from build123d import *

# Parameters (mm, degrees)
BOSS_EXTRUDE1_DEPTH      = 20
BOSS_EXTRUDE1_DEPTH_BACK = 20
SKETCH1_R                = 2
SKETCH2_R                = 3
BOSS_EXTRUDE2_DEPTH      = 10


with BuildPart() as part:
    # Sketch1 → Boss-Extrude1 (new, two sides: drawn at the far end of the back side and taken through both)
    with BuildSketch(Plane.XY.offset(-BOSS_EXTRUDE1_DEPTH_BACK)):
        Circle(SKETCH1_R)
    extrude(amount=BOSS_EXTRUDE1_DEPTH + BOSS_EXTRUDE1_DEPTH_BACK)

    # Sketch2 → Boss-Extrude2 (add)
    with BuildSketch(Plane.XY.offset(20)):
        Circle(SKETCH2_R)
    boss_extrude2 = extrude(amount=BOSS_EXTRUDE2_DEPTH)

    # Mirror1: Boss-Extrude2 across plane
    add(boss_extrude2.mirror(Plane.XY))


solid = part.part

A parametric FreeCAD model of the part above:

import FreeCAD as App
import Part
import Sketcher
from FreeCAD import Vector

doc = App.newDocument("Part")
body = doc.addObject("PartDesign::Body", "Body")

# Sketch on XY plane
sketch1 = body.newObject("Sketcher::SketchObject", "Sketch")
sketch1.AttachmentSupport = (doc.getObject("XY_Plane"), [""])
sketch1.MapMode = "FlatFace"
sketch1.addGeometry(Part.Circle(Vector(0, 0, 0), Vector(0, 0, 1), 2), False)
sketch1.addConstraint([
    Sketcher.Constraint("Coincident", 0, 3, -1, 1),
    Sketcher.Constraint("Diameter", 0, 4.0),
])
pad1 = body.newObject("PartDesign::Pad", "Pad")
pad1.Profile = sketch1
pad1.Type = "TwoLengths"
pad1.Length = 20
pad1.Length2 = 20

# Sketch on XY plane
sketch2 = body.newObject("Sketcher::SketchObject", "Sketch001")
sketch2.AttachmentSupport = (doc.getObject("XY_Plane"), [""])
sketch2.MapMode = "FlatFace"
sketch2.AttachmentOffset = App.Placement(Vector(0, 0, 20), App.Rotation())
sketch2.addGeometry(Part.Circle(Vector(0, 0, 0), Vector(0, 0, 1), 3), False)
sketch2.addConstraint([
    Sketcher.Constraint("Coincident", 0, 3, -1, 1),
    Sketcher.Constraint("Diameter", 0, 6.0),
])
pad2 = body.newObject("PartDesign::Pad", "Pad001")
pad2.Profile = sketch2
pad2.Length = 10
doc.recompute()

mirrored = body.newObject("PartDesign::Mirrored", "Mirrored")
mirrored.Originals = [pad2]
mirrored.MirrorPlane = (doc.getObject("XY_Plane"), [""])
body.Tip = mirrored

doc.recompute()
